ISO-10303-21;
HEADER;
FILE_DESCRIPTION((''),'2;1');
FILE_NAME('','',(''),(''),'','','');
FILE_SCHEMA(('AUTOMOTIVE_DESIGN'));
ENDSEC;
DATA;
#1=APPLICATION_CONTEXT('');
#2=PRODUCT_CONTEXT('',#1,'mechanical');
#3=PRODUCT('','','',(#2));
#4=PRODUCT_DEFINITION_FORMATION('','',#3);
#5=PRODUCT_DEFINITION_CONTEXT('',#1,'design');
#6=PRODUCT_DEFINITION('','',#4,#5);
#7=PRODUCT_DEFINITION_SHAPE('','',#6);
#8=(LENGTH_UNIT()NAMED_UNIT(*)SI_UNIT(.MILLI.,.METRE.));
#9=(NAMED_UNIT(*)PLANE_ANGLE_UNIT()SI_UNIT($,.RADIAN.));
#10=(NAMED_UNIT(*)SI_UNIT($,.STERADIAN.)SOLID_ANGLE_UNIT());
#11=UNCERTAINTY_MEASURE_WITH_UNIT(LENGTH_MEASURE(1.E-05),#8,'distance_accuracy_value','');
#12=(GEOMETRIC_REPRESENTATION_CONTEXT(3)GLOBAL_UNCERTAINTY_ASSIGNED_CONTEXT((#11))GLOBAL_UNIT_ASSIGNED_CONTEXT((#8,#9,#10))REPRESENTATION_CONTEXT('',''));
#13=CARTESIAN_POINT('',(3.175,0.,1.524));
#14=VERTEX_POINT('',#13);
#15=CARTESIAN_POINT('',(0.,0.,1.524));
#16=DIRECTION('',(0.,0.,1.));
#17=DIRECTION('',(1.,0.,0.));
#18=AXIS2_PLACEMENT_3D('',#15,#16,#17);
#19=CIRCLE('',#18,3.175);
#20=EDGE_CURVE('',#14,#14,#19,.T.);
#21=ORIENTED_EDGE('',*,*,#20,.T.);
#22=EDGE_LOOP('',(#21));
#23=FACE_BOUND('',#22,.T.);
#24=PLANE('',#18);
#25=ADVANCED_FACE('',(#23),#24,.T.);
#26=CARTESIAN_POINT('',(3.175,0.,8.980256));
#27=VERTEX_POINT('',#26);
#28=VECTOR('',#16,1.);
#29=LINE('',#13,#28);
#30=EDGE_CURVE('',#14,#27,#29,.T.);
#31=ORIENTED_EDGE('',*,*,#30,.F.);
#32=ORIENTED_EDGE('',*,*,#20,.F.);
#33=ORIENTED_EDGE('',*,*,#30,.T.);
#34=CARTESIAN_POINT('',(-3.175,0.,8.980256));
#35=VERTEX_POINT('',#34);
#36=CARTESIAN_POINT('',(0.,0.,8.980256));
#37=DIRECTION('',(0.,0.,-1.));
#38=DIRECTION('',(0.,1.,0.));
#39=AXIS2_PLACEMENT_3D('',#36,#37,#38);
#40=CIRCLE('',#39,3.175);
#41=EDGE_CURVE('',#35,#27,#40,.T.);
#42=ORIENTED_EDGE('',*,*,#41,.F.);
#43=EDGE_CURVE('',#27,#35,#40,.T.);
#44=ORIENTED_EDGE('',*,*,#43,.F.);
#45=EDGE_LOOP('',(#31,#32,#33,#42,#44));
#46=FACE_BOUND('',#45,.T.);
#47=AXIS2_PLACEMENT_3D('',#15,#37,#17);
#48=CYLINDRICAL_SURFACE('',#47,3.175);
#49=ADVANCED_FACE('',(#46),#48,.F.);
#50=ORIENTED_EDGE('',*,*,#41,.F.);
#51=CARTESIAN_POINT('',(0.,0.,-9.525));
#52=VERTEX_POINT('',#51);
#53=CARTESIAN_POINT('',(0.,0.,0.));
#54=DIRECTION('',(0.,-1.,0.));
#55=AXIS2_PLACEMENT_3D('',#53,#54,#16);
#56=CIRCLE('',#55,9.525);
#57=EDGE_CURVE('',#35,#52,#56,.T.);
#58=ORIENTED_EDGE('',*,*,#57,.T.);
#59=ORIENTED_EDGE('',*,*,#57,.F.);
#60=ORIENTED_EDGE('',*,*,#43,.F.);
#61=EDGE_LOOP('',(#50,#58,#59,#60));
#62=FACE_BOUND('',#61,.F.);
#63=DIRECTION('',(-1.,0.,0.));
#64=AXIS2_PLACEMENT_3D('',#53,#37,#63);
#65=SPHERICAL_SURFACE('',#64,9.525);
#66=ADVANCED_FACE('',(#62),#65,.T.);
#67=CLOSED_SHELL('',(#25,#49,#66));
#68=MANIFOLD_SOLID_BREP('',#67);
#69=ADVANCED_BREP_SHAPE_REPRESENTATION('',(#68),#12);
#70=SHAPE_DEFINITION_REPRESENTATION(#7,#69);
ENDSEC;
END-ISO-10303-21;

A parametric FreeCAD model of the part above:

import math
import FreeCAD as App
import Part
import Sketcher
from FreeCAD import Vector
Q = App.Units.Quantity

doc = App.newDocument("Part")
body = doc.addObject("PartDesign::Body", "Body")

sketch1 = body.newObject("Sketcher::SketchObject", "Sketch")
sketch1.AttachmentSupport = (doc.getObject("XZ_Plane"), [""])
sketch1.MapMode = "FlatFace"
sketch1.addGeometry(Part.LineSegment(Vector(0, -10, 0), Vector(0, 10, 0)), False)
sketch1.addGeometry(Part.ArcOfCircle(Part.Circle(Vector(0, 0, 0), Vector(0, 0, 1), 10), math.radians(90), math.radians(270)), False)
sketch1.addConstraint(Sketcher.Constraint("Coincident", 0, 1, 1, 2))
sketch1.addConstraint(Sketcher.Constraint("Coincident", 1, 1, 0, 2))
sketch1.addConstraint(Sketcher.Constraint("Vertical", 0))
sketch1.addConstraint(Sketcher.Constraint("Coincident", 1, 3, -1, 1))
sketch1.addConstraint(Sketcher.Constraint("PointOnObject", 0, 1, -2))
sketch1.addConstraint(Sketcher.Constraint("Radius", 1, Q("0.375 in")))
revolution = body.newObject("PartDesign::Revolution", "Revolution")
revolution.Profile = sketch1
revolution.ReferenceAxis = (sketch1, ["V_Axis"])
revolution.Angle = 360

sketch2 = body.newObject("Sketcher::SketchObject", "Sketch001")
sketch2.AttachmentSupport = (doc.getObject("XY_Plane"), [""])
sketch2.MapMode = "FlatFace"
sketch2.AttachmentOffset = App.Placement(Vector(0, 0, 0.06 * 25.4), App.Rotation())
sketch2.addGeometry(Part.Circle(Vector(0, 0, 0), Vector(0, 0, 1), 3.2), False)
sketch2.addConstraint(Sketcher.Constraint("Coincident", 0, 3, -1, 1))
sketch2.addConstraint(Sketcher.Constraint("Diameter", 0, Q("0.25 in")))
pocket1 = body.newObject("PartDesign::Pocket", "Pocket")
pocket1.Profile = sketch2
pocket1.Length = Q("0.42 in")
pocket1.Reversed = True

sketch3 = body.newObject("Sketcher::SketchObject", "Sketch002")
sketch3.AttachmentSupport = (doc.getObject("XY_Plane"), [""])
sketch3.MapMode = "FlatFace"
sketch3.AttachmentOffset = App.Placement(Vector(0, 0, 0.06 * 25.4), App.Rotation())
sketch3.addGeometry(Part.Circle(Vector(0, 0, 0), Vector(0, 0, 1), 3.2), False)
sketch3.addConstraint(Sketcher.Constraint("Coincident", 0, 3, -1, 1))
sketch3.addConstraint(Sketcher.Constraint("Diameter", 0, Q("0.25 in")))
pocket2 = body.newObject("PartDesign::Pocket", "Pocket001")
pocket2.Profile = sketch3
pocket2.Length = Q("0.27 in")
pocket2.Reversed = True

doc.recompute()
